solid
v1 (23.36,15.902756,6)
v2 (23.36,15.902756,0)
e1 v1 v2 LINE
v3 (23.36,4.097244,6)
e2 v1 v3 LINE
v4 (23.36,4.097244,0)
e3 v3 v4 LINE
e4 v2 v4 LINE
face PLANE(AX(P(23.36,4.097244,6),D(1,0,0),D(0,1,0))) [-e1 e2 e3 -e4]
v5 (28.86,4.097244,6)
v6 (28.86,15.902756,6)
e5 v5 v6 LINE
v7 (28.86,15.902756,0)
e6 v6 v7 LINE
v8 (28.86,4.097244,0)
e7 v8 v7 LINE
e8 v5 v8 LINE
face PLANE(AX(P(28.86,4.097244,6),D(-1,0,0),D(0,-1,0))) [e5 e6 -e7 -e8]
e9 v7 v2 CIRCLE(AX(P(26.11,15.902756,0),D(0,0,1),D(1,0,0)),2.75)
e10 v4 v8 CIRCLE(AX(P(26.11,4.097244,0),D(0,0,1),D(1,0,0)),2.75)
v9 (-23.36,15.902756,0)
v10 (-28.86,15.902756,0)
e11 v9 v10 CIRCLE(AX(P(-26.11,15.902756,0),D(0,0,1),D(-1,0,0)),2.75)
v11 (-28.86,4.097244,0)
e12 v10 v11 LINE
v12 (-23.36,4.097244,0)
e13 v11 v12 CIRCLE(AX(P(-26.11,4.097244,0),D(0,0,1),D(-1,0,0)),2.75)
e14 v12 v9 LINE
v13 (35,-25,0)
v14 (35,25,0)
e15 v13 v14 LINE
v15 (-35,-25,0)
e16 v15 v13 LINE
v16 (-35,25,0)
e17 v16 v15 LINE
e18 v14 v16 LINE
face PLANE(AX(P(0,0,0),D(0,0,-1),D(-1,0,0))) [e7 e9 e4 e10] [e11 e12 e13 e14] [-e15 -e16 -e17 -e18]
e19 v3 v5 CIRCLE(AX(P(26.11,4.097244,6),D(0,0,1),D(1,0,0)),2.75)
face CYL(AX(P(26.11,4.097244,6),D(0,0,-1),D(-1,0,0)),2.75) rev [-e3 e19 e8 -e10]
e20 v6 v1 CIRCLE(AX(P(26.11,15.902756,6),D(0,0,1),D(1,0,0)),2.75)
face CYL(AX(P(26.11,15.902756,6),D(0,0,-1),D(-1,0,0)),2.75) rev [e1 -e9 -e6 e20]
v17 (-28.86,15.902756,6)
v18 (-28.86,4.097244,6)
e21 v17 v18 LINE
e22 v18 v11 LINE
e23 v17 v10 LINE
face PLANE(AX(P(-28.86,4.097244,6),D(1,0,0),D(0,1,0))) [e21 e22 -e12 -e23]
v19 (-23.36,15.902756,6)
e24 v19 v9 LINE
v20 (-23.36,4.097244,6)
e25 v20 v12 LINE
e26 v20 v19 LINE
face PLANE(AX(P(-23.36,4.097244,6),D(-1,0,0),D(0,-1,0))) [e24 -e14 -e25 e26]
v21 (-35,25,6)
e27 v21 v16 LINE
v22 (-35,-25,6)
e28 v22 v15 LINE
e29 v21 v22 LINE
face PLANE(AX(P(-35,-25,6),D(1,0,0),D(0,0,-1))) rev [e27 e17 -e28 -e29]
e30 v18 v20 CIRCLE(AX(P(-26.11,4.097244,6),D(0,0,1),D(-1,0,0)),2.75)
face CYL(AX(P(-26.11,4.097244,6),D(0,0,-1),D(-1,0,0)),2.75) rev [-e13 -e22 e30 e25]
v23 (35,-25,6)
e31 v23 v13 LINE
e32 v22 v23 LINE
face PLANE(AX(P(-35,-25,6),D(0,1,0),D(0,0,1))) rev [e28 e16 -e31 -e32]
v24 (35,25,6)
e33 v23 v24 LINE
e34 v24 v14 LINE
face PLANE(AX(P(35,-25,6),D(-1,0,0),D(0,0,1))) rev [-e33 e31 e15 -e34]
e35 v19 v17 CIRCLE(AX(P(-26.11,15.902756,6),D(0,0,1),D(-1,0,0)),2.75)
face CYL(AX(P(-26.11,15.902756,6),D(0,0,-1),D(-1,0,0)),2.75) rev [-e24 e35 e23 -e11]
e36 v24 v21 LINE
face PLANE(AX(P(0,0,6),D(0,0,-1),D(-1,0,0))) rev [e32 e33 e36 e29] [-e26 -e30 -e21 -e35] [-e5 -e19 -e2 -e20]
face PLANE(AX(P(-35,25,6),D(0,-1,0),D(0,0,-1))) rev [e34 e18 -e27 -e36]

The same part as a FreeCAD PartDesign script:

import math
import FreeCAD as App
import Part
import Sketcher
from FreeCAD import Vector
Q = App.Units.Quantity


def add_polygon(sketch, points):
    """Adds a closed chain of lines whose ends are joined by coincident constraints."""
    first, n = sketch.GeometryCount, len(points)
    for a, b in zip(points, points[1:] + points[:1]):
        sketch.addGeometry(Part.LineSegment(App.Vector(*a, 0), App.Vector(*b, 0)), False)
    for i in range(n):
        sketch.addConstraint(Sketcher.Constraint("Coincident", first + i, 2, first + (i + 1) % n, 1))

doc = App.newDocument("Part")
body = doc.addObject("PartDesign::Body", "Body")

sketch1 = doc.addObject("Sketcher::SketchObject", "Sketch")
body.addObject(sketch1)
sketch1.AttachmentSupport = (doc.XY_Plane, [""])
sketch1.MapMode = "FlatFace"
add_polygon(sketch1, [(-35, 25), (-35, -25), (35, -25), (35, 25)])
sketch1.addConstraint(Sketcher.Constraint("Vertical", 0))
sketch1.addConstraint(Sketcher.Constraint("Horizontal", 1))
sketch1.addConstraint(Sketcher.Constraint("Vertical", 2))
sketch1.addConstraint(Sketcher.Constraint("Horizontal", 3))
sketch1.addConstraint(Sketcher.Constraint("Symmetric", 0, 2, 2, 2, -1, 1))
sketch1.addConstraint(Sketcher.Constraint("DistanceX", 1, 1, 1, 2, Q("70 mm")))
sketch1.addConstraint(Sketcher.Constraint("DistanceY", 0, 2, 0, 1, Q("50 mm")))
pad1 = doc.addObject("PartDesign::Pad", "Pad")
body.addObject(pad1)
pad1.Profile = sketch1
pad1.Length = 6

sketch2 = doc.addObject("Sketcher::SketchObject", "Sketch001")
body.addObject(sketch2)
sketch2.AttachmentSupport = (doc.XY_Plane, [""])
sketch2.MapMode = "FlatFace"
sketch2.addGeometry(Part.LineSegment(Vector(23.4, 15.9, 0), Vector(23.4, 4.1, 0)), False)
sketch2.addGeometry(Part.ArcOfCircle(Part.Circle(Vector(26.1, 4.1, 0), Vector(0, 0, 1), 2.8), math.radians(180), math.radians(360)), False)
sketch2.addGeometry(Part.LineSegment(Vector(28.9, 4.1, 0), Vector(28.9, 15.9, 0)), False)
sketch2.addGeometry(Part.ArcOfCircle(Part.Circle(Vector(26.1, 15.9, 0), Vector(0, 0, 1), 2.8), math.radians(0), math.radians(180)), False)
sketch2.addGeometry(Part.LineSegment(Vector(-23.4, 4.1, 0), Vector(-23.4, 15.9, 0)), False)
sketch2.addGeometry(Part.ArcOfCircle(Part.Circle(Vector(-26.1, 15.9, 0), Vector(0, 0, 1), 2.8), math.radians(0), math.radians(180)), False)
sketch2.addGeometry(Part.LineSegment(Vector(-28.9, 15.9, 0), Vector(-28.9, 4.1, 0)), False)
sketch2.addGeometry(Part.ArcOfCircle(Part.Circle(Vector(-26.1, 4.1, 0), Vector(0, 0, 1), 2.8), math.radians(180), math.radians(360)), False)
sketch2.addConstraint(Sketcher.Constraint("Tangent", 0, 2, 1, 1))
sketch2.addConstraint(Sketcher.Constraint("Tangent", 1, 2, 2, 1))
sketch2.addConstraint(Sketcher.Constraint("Tangent", 2, 2, 3, 1))
sketch2.addConstraint(Sketcher.Constraint("Tangent", 3, 2, 0, 1))
sketch2.addConstraint(Sketcher.Constraint("Tangent", 4, 2, 5, 1))
sketch2.addConstraint(Sketcher.Constraint("Tangent", 5, 2, 6, 1))
sketch2.addConstraint(Sketcher.Constraint("Tangent", 6, 2, 7, 1))
sketch2.addConstraint(Sketcher.Constraint("Tangent", 7, 2, 4, 1))
sketch2.addConstraint(Sketcher.Constraint("Vertical", 0))
sketch2.addConstraint(Sketcher.Constraint("Vertical", 2))
sketch2.addConstraint(Sketcher.Constraint("Vertical", 4))
sketch2.addConstraint(Sketcher.Constraint("Vertical", 6))
sketch2.addConstraint(Sketcher.Constraint("Equal", 3, 5))
sketch2.addConstraint(Sketcher.Constraint("Symmetric", 3, 3, 5, 3, -2))
sketch2.addConstraint(Sketcher.Constraint("Horizontal", 1, 3, 7, 3))
sketch2.addConstraint(Sketcher.Constraint("Radius", 1, Q("2.75 mm")))
sketch2.addConstraint(Sketcher.Constraint("DistanceX", -1, 1, 1, 3, Q("26.11 mm")))
sketch2.addConstraint(Sketcher.Constraint("DistanceY", 0, 2, 0, 1, Q("11.805513 mm")))
sketch2.addConstraint(Sketcher.Constraint("DistanceY", -1, 1, 1, 3, Q("4.097244 mm")))
pocket1 = doc.addObject("PartDesign::Pocket", "Pocket")
body.addObject(pocket1)
pocket1.Profile = sketch2
pocket1.Type = "ThroughAll"
pocket1.Reversed = True

doc.recompute()
